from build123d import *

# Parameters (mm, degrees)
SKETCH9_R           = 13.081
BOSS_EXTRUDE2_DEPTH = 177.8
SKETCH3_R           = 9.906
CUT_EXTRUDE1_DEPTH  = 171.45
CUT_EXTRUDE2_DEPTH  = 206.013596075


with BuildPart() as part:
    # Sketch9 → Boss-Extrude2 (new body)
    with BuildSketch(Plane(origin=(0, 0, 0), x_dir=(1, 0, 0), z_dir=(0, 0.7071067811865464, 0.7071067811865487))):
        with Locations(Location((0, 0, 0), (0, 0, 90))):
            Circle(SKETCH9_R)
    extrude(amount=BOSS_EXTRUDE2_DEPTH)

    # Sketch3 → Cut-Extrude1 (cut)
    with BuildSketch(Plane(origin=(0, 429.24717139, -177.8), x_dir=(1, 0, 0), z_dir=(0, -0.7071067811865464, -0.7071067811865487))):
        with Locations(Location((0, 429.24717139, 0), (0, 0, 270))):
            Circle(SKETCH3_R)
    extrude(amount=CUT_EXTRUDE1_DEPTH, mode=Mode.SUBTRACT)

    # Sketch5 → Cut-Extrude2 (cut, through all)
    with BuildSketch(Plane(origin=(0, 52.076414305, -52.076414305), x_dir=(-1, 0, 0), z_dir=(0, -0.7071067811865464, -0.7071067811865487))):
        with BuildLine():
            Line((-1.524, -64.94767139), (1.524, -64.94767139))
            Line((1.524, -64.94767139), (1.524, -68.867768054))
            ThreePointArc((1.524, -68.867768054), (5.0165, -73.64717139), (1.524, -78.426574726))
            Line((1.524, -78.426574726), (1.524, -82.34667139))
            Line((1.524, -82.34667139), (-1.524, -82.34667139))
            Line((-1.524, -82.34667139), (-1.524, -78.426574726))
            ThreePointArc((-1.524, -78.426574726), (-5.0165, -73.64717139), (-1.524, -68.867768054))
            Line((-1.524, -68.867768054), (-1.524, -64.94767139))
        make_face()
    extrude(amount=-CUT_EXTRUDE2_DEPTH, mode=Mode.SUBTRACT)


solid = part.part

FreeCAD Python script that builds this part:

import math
import FreeCAD as App
import Part
import Sketcher
Q = App.Units.Quantity

doc = App.newDocument("Part")
body = doc.addObject("PartDesign::Body", "Body")

# Sketch on an angled plane
sketch1 = body.newObject("Sketcher::SketchObject", "Sketch")
sketch1.Placement = App.Placement(App.Vector(0, 0, 0), App.Rotation(App.Vector(1, 0, 0), App.Vector(0, 0.707106781, -0.707106781), App.Vector(0, 0.707106781, 0.707106781), "ZXY"))
sketch1.addGeometry(Part.Circle(App.Vector(0, 0, 0), App.Vector(0, 0, 1), 13.081), False)
sketch1.addConstraint(Sketcher.Constraint("Coincident", 0, 3, -1, 1))
sketch1.addConstraint(Sketcher.Constraint("Diameter", 0, Q("1.03 in")))
pad1 = body.newObject("PartDesign::Pad", "Pad")
pad1.Profile = sketch1
pad1.Length = Q("7 in")

# Sketch on an angled plane
sketch2 = body.newObject("Sketcher::SketchObject", "Sketch001")
sketch2.Placement = App.Placement(App.Vector(0, 429.247171, -177.8), App.Rotation(App.Vector(1, 0, 0), App.Vector(0, -0.707106781, 0.707106781), App.Vector(0, -0.707106781, -0.707106781), "ZXY"))
sketch2.addGeometry(Part.Circle(App.Vector(0, 429.247171, 0), App.Vector(0, 0, 1), 9.906), False)
sketch2.addConstraint(Sketcher.Constraint("PointOnObject", 0, 3, -2))
sketch2.addConstraint(Sketcher.Constraint("Diameter", 0, Q("0.78 in")))
sketch2.addConstraint(Sketcher.Constraint("DistanceY", -1, 1, 0, 3, 429.247171))
pocket1 = body.newObject("PartDesign::Pocket", "Pocket")
pocket1.Profile = sketch2
pocket1.Length = Q("6.75 in")
pocket1.Reversed = True

# Sketch on an angled plane
sketch3 = body.newObject("Sketcher::SketchObject", "Sketch002")
sketch3.Placement = App.Placement(App.Vector(0, 52.076414, -52.076414), App.Rotation(App.Vector(-1, 0, 0), App.Vector(0, 0.707106781, -0.707106781), App.Vector(0, -0.707106781, -0.707106781), "ZXY"))
sketch3.addGeometry(Part.LineSegment(App.Vector(1.524, -64.947671, 0), App.Vector(-1.524, -64.947671, 0)), False)
sketch3.addGeometry(Part.LineSegment(App.Vector(-1.524, -64.947671, 0), App.Vector(-1.524, -68.867768, 0)), False)
sketch3.addGeometry(Part.ArcOfCircle(Part.Circle(App.Vector(0, -73.647171, 0), App.Vector(0, 0, 1), 5.0165), math.radians(107.685831), math.radians(252.314169)), False)
sketch3.addGeometry(Part.LineSegment(App.Vector(-1.524, -78.426575, 0), App.Vector(-1.524, -82.346671, 0)), False)
sketch3.addGeometry(Part.LineSegment(App.Vector(-1.524, -82.346671, 0), App.Vector(1.524, -82.346671, 0)), False)
sketch3.addGeometry(Part.LineSegment(App.Vector(1.524, -82.346671, 0), App.Vector(1.524, -78.426575, 0)), False)
sketch3.addGeometry(Part.ArcOfCircle(Part.Circle(App.Vector(0, -73.647171, 0), App.Vector(0, 0, 1), 5.0165), math.radians(-72.314169), math.radians(72.314169)), False)
sketch3.addGeometry(Part.LineSegment(App.Vector(1.524, -68.867768, 0), App.Vector(1.524, -64.947671, 0)), False)
sketch3.addConstraint(Sketcher.Constraint("Coincident", 0, 2, 1, 1))
sketch3.addConstraint(Sketcher.Constraint("Coincident", 1, 2, 2, 1))
sketch3.addConstraint(Sketcher.Constraint("Coincident", 2, 2, 3, 1))
sketch3.addConstraint(Sketcher.Constraint("Coincident", 3, 2, 4, 1))
sketch3.addConstraint(Sketcher.Constraint("Coincident", 4, 2, 5, 1))
sketch3.addConstraint(Sketcher.Constraint("Coincident", 5, 2, 6, 1))
sketch3.addConstraint(Sketcher.Constraint("Coincident", 6, 2, 7, 1))
sketch3.addConstraint(Sketcher.Constraint("Coincident", 7, 2, 0, 1))
sketch3.addConstraint(Sketcher.Constraint("Horizontal", 0))
sketch3.addConstraint(Sketcher.Constraint("Vertical", 1))
sketch3.addConstraint(Sketcher.Constraint("Vertical", 3))
sketch3.addConstraint(Sketcher.Constraint("Horizontal", 4))
sketch3.addConstraint(Sketcher.Constraint("Vertical", 5))
sketch3.addConstraint(Sketcher.Constraint("Vertical", 7))
sketch3.addConstraint(Sketcher.Constraint("Coincident", 6, 3, 2, 3))
sketch3.addConstraint(Sketcher.Constraint("Equal", 2, 6))
sketch3.addConstraint(Sketcher.Constraint("Symmetric", 2, 2, 5, 2, -2))
sketch3.addConstraint(Sketcher.Constraint("Horizontal", 1, 2, 6, 2))
sketch3.addConstraint(Sketcher.Constraint("Vertical", 1, 2, 2, 2))
sketch3.addConstraint(Sketcher.Constraint("Equal", 1, 3))
sketch3.addConstraint(Sketcher.Constraint("DistanceX", 0, 2, 0, 1, Q("0.12 in")))
sketch3.addConstraint(Sketcher.Constraint("Radius", 2, Q("0.1975 in")))
sketch3.addConstraint(Sketcher.Constraint("DistanceY", 3, 2, 0, 2, Q("0.685 in")))
sketch3.addConstraint(Sketcher.Constraint("DistanceY", 2, 3, -1, 1, 73.647171))
pocket2 = body.newObject("PartDesign::Pocket", "Pocket001")
pocket2.Profile = sketch3
pocket2.Type = "ThroughAll"

doc.recompute()
